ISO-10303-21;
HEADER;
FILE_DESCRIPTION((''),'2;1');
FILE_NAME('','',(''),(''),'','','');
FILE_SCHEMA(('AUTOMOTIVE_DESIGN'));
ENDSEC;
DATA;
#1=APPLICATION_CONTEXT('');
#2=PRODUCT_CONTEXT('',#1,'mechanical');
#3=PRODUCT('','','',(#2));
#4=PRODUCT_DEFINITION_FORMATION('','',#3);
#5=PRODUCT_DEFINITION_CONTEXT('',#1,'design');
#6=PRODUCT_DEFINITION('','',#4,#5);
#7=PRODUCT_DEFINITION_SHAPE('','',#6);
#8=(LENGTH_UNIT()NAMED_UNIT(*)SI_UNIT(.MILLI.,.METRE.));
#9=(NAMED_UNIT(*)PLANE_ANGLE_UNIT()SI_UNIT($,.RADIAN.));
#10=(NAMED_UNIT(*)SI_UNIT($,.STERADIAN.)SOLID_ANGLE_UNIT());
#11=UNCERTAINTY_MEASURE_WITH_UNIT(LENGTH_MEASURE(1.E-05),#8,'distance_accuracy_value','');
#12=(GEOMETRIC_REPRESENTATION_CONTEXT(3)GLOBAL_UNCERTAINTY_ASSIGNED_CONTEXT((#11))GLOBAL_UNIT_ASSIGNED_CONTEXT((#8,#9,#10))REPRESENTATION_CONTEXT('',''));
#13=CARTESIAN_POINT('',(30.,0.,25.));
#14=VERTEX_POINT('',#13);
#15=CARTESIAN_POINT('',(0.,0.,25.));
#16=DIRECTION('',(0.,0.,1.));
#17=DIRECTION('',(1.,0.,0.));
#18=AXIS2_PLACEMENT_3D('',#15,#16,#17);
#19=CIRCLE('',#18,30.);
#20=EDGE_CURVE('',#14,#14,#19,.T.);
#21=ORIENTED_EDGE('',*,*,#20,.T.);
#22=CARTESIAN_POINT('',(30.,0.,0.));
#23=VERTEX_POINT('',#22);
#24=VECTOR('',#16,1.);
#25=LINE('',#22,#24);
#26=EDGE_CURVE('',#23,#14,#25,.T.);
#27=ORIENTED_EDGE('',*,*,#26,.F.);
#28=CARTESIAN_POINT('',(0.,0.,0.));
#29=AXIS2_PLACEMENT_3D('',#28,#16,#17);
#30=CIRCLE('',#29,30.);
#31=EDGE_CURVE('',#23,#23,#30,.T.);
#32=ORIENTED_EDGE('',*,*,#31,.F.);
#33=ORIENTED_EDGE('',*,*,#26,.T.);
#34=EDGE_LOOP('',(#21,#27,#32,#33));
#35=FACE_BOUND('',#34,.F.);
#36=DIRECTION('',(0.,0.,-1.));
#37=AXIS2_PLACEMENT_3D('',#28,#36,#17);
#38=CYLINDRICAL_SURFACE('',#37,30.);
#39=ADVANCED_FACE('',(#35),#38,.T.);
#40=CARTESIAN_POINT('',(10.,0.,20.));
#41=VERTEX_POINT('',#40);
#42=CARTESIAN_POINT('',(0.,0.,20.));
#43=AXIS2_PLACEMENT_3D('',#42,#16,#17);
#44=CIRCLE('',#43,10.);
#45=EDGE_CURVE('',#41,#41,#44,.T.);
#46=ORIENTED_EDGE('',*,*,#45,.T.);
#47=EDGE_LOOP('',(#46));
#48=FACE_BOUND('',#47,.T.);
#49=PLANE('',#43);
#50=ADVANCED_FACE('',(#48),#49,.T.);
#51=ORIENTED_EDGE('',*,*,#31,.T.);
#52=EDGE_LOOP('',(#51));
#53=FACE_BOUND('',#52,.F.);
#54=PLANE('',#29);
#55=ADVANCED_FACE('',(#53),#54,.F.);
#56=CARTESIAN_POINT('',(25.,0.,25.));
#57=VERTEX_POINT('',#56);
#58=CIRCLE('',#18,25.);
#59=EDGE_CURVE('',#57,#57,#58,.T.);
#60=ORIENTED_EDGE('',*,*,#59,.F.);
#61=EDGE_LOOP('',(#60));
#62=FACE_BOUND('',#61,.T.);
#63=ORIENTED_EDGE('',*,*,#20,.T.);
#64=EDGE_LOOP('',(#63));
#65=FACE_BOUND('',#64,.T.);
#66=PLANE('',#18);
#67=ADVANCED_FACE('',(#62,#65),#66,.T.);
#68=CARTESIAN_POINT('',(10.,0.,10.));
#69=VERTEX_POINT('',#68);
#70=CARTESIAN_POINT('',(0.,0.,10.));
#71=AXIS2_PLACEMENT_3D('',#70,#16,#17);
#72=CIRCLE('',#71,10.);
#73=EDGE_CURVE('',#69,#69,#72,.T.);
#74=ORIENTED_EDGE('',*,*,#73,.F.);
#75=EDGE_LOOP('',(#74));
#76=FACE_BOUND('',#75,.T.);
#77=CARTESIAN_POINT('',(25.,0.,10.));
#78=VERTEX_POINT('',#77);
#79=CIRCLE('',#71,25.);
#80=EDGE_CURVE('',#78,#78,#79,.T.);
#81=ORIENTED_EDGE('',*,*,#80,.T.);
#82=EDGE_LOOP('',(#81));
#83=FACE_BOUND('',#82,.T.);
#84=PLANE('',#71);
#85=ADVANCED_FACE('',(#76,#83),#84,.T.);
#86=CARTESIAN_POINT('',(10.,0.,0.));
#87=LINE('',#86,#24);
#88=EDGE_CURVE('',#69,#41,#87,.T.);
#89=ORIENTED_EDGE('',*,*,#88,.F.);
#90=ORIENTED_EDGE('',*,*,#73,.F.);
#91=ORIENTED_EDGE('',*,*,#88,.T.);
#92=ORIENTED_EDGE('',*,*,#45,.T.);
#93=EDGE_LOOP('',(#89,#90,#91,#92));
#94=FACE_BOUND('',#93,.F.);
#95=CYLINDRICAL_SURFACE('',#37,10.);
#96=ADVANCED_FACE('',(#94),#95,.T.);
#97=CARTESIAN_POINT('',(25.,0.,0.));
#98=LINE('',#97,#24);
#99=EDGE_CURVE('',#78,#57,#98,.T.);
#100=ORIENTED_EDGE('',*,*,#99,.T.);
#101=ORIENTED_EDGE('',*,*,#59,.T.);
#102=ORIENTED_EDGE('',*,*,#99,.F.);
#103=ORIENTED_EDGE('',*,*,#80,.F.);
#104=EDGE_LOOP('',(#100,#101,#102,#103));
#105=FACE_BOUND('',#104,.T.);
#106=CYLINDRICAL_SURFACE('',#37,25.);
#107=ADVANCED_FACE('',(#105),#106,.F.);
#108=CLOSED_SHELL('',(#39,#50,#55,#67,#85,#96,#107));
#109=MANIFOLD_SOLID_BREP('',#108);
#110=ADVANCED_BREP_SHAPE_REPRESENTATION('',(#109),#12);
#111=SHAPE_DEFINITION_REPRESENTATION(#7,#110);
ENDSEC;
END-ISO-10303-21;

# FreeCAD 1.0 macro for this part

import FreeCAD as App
import Part
import Sketcher
from FreeCAD import Vector
Q = App.Units.Quantity

doc = App.newDocument("Part")
body = doc.addObject("PartDesign::Body", "Body")

# Sketch on XY plane
sketch1 = doc.addObject("Sketcher::SketchObject", "Sketch")
body.addObject(sketch1)
sketch1.AttachmentSupport = (doc.XY_Plane, [""])
sketch1.MapMode = "FlatFace"
sketch1.addGeometry(Part.Circle(Vector(0, 0, 0), Vector(0, 0, 1), 30), False)
sketch1.addGeometry(Part.Circle(Vector(0, 0, 0), Vector(0, 0, 1), 25), False)
sketch1.addConstraint(Sketcher.Constraint("Coincident", 0, 3, -1, 1))
sketch1.addConstraint(Sketcher.Constraint("Coincident", 1, 3, -1, 1))
sketch1.addConstraint(Sketcher.Constraint("Diameter", 0, Q("60 mm")))
sketch1.addConstraint(Sketcher.Constraint("Diameter", 1, Q("50 mm")))
pad1 = doc.addObject("PartDesign::Pad", "Pad")
body.addObject(pad1)
pad1.Profile = sketch1
pad1.Length = 25

# Sketch on XY plane
sketch2 = doc.addObject("Sketcher::SketchObject", "Sketch001")
body.addObject(sketch2)
sketch2.AttachmentSupport = (doc.XY_Plane, [""])
sketch2.MapMode = "FlatFace"
sketch2.addGeometry(Part.Circle(Vector(0, 0, 0), Vector(0, 0, 1), 25), False)
sketch2.addGeometry(Part.Circle(Vector(0, 0, 0), Vector(0, 0, 1), 10), False)
sketch2.addConstraint(Sketcher.Constraint("Coincident", 0, 3, -1, 1))
sketch2.addConstraint(Sketcher.Constraint("Coincident", 1, 3, -1, 1))
sketch2.addConstraint(Sketcher.Constraint("Diameter", 0, Q("50 mm")))
sketch2.addConstraint(Sketcher.Constraint("Diameter", 1, Q("20 mm")))
pad2 = doc.addObject("PartDesign::Pad", "Pad001")
body.addObject(pad2)
pad2.Profile = sketch2
pad2.Length = 10

# Sketch on XY plane
sketch3 = doc.addObject("Sketcher::SketchObject", "Sketch002")
body.addObject(sketch3)
sketch3.AttachmentSupport = (doc.XY_Plane, [""])
sketch3.MapMode = "FlatFace"
sketch3.addGeometry(Part.Circle(Vector(0, 0, 0), Vector(0, 0, 1), 10), False)
sketch3.addConstraint(Sketcher.Constraint("Coincident", 0, 3, -1, 1))
sketch3.addConstraint(Sketcher.Constraint("Diameter", 0, Q("20 mm")))
pad3 = doc.addObject("PartDesign::Pad", "Pad002")
body.addObject(pad3)
pad3.Profile = sketch3
pad3.Length = 20

doc.recompute()
